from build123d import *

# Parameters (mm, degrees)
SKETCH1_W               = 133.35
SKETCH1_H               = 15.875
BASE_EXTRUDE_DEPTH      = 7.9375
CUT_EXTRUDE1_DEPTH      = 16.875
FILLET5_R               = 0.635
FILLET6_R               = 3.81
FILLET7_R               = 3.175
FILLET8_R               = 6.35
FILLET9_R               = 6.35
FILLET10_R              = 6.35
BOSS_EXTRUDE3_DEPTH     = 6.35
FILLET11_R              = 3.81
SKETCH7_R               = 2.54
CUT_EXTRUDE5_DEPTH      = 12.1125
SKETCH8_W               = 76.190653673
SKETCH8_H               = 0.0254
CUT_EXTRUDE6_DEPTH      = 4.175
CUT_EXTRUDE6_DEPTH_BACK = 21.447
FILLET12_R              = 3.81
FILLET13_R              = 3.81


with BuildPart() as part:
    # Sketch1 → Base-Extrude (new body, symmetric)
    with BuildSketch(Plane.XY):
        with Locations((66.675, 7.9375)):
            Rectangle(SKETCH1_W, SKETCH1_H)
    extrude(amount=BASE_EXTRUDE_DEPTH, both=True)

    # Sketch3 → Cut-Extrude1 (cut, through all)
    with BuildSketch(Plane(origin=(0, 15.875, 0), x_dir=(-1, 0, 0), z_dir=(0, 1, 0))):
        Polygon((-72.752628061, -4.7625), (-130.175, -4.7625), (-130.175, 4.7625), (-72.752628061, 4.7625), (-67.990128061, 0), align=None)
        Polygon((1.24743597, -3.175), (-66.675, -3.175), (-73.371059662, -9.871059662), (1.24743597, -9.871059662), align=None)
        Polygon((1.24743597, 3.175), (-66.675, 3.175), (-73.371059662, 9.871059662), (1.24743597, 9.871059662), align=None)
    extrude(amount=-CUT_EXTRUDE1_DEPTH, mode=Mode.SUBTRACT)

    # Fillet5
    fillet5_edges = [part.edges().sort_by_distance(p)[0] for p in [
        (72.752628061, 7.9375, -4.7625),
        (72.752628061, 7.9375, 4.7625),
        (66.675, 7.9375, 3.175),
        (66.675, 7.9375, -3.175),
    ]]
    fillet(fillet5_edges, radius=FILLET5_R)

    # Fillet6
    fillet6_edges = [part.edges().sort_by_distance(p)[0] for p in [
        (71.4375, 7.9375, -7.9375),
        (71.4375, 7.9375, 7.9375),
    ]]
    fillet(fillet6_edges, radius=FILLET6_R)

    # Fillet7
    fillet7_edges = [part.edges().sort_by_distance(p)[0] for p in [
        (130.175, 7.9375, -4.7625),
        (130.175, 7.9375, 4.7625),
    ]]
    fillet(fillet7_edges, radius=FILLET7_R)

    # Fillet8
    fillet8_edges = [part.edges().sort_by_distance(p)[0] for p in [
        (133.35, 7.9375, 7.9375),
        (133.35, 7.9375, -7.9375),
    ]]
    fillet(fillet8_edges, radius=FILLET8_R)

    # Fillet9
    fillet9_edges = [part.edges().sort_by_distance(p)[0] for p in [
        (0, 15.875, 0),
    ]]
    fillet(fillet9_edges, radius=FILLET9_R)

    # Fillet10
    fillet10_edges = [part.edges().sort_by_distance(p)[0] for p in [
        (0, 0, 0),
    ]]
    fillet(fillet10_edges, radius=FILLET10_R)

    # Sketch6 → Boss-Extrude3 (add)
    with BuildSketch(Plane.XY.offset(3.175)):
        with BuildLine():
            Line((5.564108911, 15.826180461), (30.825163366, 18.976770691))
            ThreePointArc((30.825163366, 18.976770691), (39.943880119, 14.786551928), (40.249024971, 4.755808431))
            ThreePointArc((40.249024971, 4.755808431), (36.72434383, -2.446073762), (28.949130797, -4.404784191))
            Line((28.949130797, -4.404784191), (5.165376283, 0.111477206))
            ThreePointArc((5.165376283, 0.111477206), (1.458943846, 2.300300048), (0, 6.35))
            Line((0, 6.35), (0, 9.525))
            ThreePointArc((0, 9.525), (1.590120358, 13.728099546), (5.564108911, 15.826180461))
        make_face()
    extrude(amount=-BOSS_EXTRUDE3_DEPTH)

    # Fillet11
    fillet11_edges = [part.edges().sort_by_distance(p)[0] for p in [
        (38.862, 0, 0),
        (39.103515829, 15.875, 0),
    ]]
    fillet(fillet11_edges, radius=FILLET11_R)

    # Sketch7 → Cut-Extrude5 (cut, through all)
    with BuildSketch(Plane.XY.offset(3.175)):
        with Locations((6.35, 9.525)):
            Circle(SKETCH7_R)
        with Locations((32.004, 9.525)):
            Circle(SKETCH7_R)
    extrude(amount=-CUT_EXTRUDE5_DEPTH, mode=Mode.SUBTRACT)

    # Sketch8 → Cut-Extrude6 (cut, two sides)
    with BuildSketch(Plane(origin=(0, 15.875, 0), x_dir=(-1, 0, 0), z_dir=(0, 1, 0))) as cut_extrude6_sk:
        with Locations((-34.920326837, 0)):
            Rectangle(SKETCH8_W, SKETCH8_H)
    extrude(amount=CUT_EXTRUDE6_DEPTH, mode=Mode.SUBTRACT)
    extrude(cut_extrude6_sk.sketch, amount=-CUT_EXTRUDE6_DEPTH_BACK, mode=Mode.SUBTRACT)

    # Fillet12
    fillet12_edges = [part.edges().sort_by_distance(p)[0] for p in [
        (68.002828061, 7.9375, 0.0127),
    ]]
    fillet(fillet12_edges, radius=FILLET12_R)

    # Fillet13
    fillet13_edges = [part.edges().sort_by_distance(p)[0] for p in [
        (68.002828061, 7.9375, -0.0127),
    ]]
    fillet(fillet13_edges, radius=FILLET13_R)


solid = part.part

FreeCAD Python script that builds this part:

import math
import FreeCAD as App
import Part
import Sketcher

V = App.Vector
Q = App.Units.Quantity


def edges_at(feature, points):
    """Names of the edges that pass closest to the given points."""
    edges = feature.Shape.Edges
    near = lambda p: min(range(len(edges)), key=lambda i: edges[i].distToShape(Part.Vertex(*p))[0])
    return sorted({f"Edge{near(p) + 1}" for p in points})

doc = App.newDocument("Part")
body = doc.addObject("PartDesign::Body", "Body")

# Sketch on XY plane
sketch1 = body.newObject("Sketcher::SketchObject", "Sketch")
sketch1.AttachmentSupport = (doc.getObject("XY_Plane"), [""])
sketch1.MapMode = "FlatFace"
sketch1.addGeometry([
    Part.LineSegment(V(0, 16, 0), V(0, 0, 0)),
    Part.LineSegment(V(0, 0, 0), V(133, 0, 0)),
    Part.LineSegment(V(133, 0, 0), V(133, 16, 0)),
    Part.LineSegment(V(133, 16, 0), V(0, 16, 0)),
], False)
sketch1.addConstraint([
    Sketcher.Constraint("Coincident", 0, 2, 1, 1),
    Sketcher.Constraint("Coincident", 1, 2, 2, 1),
    Sketcher.Constraint("Coincident", 2, 2, 3, 1),
    Sketcher.Constraint("Coincident", 3, 2, 0, 1),
    Sketcher.Constraint("Vertical", 0),
    Sketcher.Constraint("Horizontal", 1),
    Sketcher.Constraint("Vertical", 2),
    Sketcher.Constraint("Horizontal", 3),
    Sketcher.Constraint("Coincident", 0, 2, -1, 1),
    Sketcher.Constraint("DistanceX", 1, 1, 1, 2, Q("5.25 in")),
    Sketcher.Constraint("DistanceY", 0, 2, 0, 1, Q("0.625 in")),
])
pad1 = body.newObject("PartDesign::Pad", "Pad")
pad1.Profile = sketch1
pad1.Length = Q("0.625 in")
pad1.Midplane = True

# Sketch on XZ plane
sketch2 = body.newObject("Sketcher::SketchObject", "Sketch001")
sketch2.AttachmentSupport = (doc.getObject("XZ_Plane"), [""])
sketch2.MapMode = "FlatFace"
sketch2.AttachmentOffset = App.Placement(V(0, 0, -0.625 * 25.4), App.Rotation())
sketch2.addGeometry([
    Part.LineSegment(V(130, -5, 0), V(73, -5, 0)),  # 0
    Part.LineSegment(V(73, -5, 0), V(68, 0, 0)),  # 1
    Part.LineSegment(V(68, 0, 0), V(73, 5, 0)),  # 2
    Part.LineSegment(V(73, 5, 0), V(130, 5, 0)),  # 3
    Part.LineSegment(V(130, 5, 0), V(130, -5, 0)),  # 4
    Part.LineSegment(V(-1, -3, 0), V(67, -3, 0)),  # 5
    Part.LineSegment(V(67, -3, 0), V(73, -10, 0)),  # 6
    Part.LineSegment(V(73, -10, 0), V(-1, -10, 0)),  # 7
    Part.LineSegment(V(-1, -10, 0), V(-1, -3, 0)),  # 8
    Part.LineSegment(V(67, 3, 0), V(-1, 3, 0)),  # 9
    Part.LineSegment(V(-1, 3, 0), V(-1, 10, 0)),  # 10
    Part.LineSegment(V(-1, 10, 0), V(73, 10, 0)),  # 11
    Part.LineSegment(V(73, 10, 0), V(67, 3, 0)),  # 12
], False)
sketch2.addConstraint([
    Sketcher.Constraint("Coincident", 0, 2, 1, 1),
    Sketcher.Constraint("Coincident", 1, 2, 2, 1),
    Sketcher.Constraint("Coincident", 2, 2, 3, 1),
    Sketcher.Constraint("Coincident", 3, 2, 4, 1),
    Sketcher.Constraint("Coincident", 4, 2, 0, 1),
    Sketcher.Constraint("Coincident", 5, 2, 6, 1),
    Sketcher.Constraint("Coincident", 6, 2, 7, 1),
    Sketcher.Constraint("Coincident", 7, 2, 8, 1),
    Sketcher.Constraint("Coincident", 8, 2, 5, 1),
    Sketcher.Constraint("Coincident", 9, 2, 10, 1),
    Sketcher.Constraint("Coincident", 10, 2, 11, 1),
    Sketcher.Constraint("Coincident", 11, 2, 12, 1),
    Sketcher.Constraint("Coincident", 12, 2, 9, 1),
    Sketcher.Constraint("Horizontal", 0),
    Sketcher.Constraint("Horizontal", 3),
    Sketcher.Constraint("Vertical", 4),
    Sketcher.Constraint("Horizontal", 5),
    Sketcher.Constraint("Horizontal", 7),
    Sketcher.Constraint("Vertical", 8),
    Sketcher.Constraint("Horizontal", 9),
    Sketcher.Constraint("Vertical", 10),
    Sketcher.Constraint("Horizontal", 11),
    Sketcher.Constraint("Symmetric", 0, 2, 2, 2, -1),
    Sketcher.Constraint("Symmetric", 8, 2, 9, 2, -1),
    Sketcher.Constraint("Symmetric", 6, 2, 11, 2, -1),
    Sketcher.Constraint("PointOnObject", 1, 2, -1),
    Sketcher.Constraint("Perpendicular", 1, 2),
    Sketcher.Constraint("Perpendicular", 2, 6),
    Sketcher.Constraint("Perpendicular", 6, 12),
    Sketcher.Constraint("DistanceX", 5, 2, 4, 2, Q("2.5 in")),
    Sketcher.Constraint("DistanceY", 4, 2, 4, 1, Q("0.375 in")),
    Sketcher.Constraint("DistanceY", 8, 2, 9, 2, Q("0.25 in")),
    Sketcher.Constraint("DistanceX", -1, 1, 3, 2, Q("5.125 in")),
    Sketcher.Constraint("DistanceX", 0, 2, 0, 1, 57.422372),
    Sketcher.Constraint("DistanceY", 8, 1, 8, 2, 6.69606),
    Sketcher.Constraint("DistanceX", 5, 1, 5, 2, 67.922436),
])
pocket1 = body.newObject("PartDesign::Pocket", "Pocket")
pocket1.Profile = sketch2
pocket1.Type = "ThroughAll"
pocket1.Reversed = True
doc.recompute()

fillet = body.newObject("PartDesign::Fillet", "Fillet")
fillet.Base = (pocket1, edges_at(pocket1, [
    (72.753, 7.938, -4.763),
    (72.753, 7.938, 4.763),
    (66.675, 7.938, 3.175),
    (66.675, 7.938, -3.175),
]))
fillet.Radius = Q("0.025 in")
doc.recompute()

fillet2 = body.newObject("PartDesign::Fillet", "Fillet001")
fillet2.Base = (fillet, edges_at(fillet, [(71.438, 7.938, -7.938), (71.438, 7.938, 7.938)]))
fillet2.Radius = Q("0.15 in")
doc.recompute()

fillet3 = body.newObject("PartDesign::Fillet", "Fillet002")
fillet3.Base = (fillet2, edges_at(fillet2, [(130.175, 7.938, -4.763), (130.175, 7.938, 4.763)]))
fillet3.Radius = Q("0.125 in")
doc.recompute()

fillet4 = body.newObject("PartDesign::Fillet", "Fillet003")
fillet4.Base = (fillet3, edges_at(fillet3, [(133.35, 7.938, 7.938), (133.35, 7.938, -7.938)]))
fillet4.Radius = Q("0.25 in")
doc.recompute()

fillet5 = body.newObject("PartDesign::Fillet", "Fillet004")
fillet5.Base = (fillet4, edges_at(fillet4, [(0, 15.875, 0)]))
fillet5.Radius = Q("0.25 in")
doc.recompute()

fillet6 = body.newObject("PartDesign::Fillet", "Fillet005")
fillet6.Base = (fillet5, edges_at(fillet5, [(0, 0, 0)]))
fillet6.Radius = Q("0.25 in")

# Sketch on XY plane
sketch3 = body.newObject("Sketcher::SketchObject", "Sketch002")
sketch3.AttachmentSupport = (doc.getObject("XY_Plane"), [""])
sketch3.MapMode = "FlatFace"
sketch3.AttachmentOffset = App.Placement(V(0, 0, 0.125 * 25.4), App.Rotation())
sketch3.addGeometry([
    Part.LineSegment(V(30.8, 19, 0), V(5.6, 15.8, 0)),  # 0
    Part.ArcOfCircle(Part.Circle(V(6.4, 9.5, 0), V(0, 0, 1), 6.4), math.radians(97), math.radians(180)),  # 1
    Part.LineSegment(V(0, 9.5, 0), V(0, 6.3, 0)),  # 2
    Part.ArcOfCircle(Part.Circle(V(6.3, 6.3, 0), V(0, 0, 1), 6.3), math.radians(180), math.radians(259)),  # 3
    Part.LineSegment(V(5.2, 0.1, 0), V(28.9, -4.4, 0)),  # 4
    Part.ArcOfCircle(Part.Circle(V(30.7, 5, 0), V(0, 0, 1), 9.5), math.radians(-101), math.radians(-1)),  # 5
    Part.ArcOfCircle(Part.Circle(V(32, 9.5, 0), V(0, 0, 1), 9.5), math.radians(-30), math.radians(97)),  # 6
], False)
sketch3.addConstraint([
    Sketcher.Constraint("Tangent", 0, 2, 1, 1),
    Sketcher.Constraint("Tangent", 1, 2, 2, 1),
    Sketcher.Constraint("Tangent", 2, 2, 3, 1),
    Sketcher.Constraint("Tangent", 3, 2, 4, 1),
    Sketcher.Constraint("Tangent", 4, 2, 5, 1),
    Sketcher.Constraint("Coincident", 5, 2, 6, 1),
    Sketcher.Constraint("Tangent", 6, 2, 0, 1),
    Sketcher.Constraint("Vertical", 2),
    Sketcher.Constraint("Equal", 1, 3),
    Sketcher.Constraint("Equal", 5, 6),
    Sketcher.Constraint("PointOnObject", 1, 2, -2),
    Sketcher.Constraint("Horizontal", 1, 3, 6, 3),
    Sketcher.Constraint("Radius", 1, Q("0.25 in")),
    Sketcher.Constraint("Radius", 5, Q("0.375 in")),
    Sketcher.Constraint("DistanceY", 2, 2, 2, 1, Q("0.125 in")),
    Sketcher.Constraint("DistanceY", -1, 1, 3, 3, Q("0.25 in")),
    Sketcher.Constraint("DistanceX", -1, 1, 6, 3, Q("1.26 in")),
    Sketcher.Constraint("DistanceY", 5, 3, 1, 3, Q("0.18 in")),
    Sketcher.Constraint("Distance", 4, 24.20875),
])
pad2 = body.newObject("PartDesign::Pad", "Pad001")
pad2.Profile = sketch3
pad2.Length = Q("0.25 in")
pad2.Reversed = True
doc.recompute()

fillet7 = body.newObject("PartDesign::Fillet", "Fillet006")
fillet7.Base = (pad2, edges_at(pad2, [(38.862, 0, 0), (39.104, 15.875, 0)]))
fillet7.Radius = Q("0.15 in")

# Sketch on XY plane
sketch4 = body.newObject("Sketcher::SketchObject", "Sketch003")
sketch4.AttachmentSupport = (doc.getObject("XY_Plane"), [""])
sketch4.MapMode = "FlatFace"
sketch4.AttachmentOffset = App.Placement(V(0, 0, 0.125 * 25.4), App.Rotation())
sketch4.addGeometry([
    Part.Circle(V(6.3, 9.5, 0), V(0, 0, 1), 2.5),
    Part.Circle(V(32, 9.5, 0), V(0, 0, 1), 2.5),
], False)
sketch4.addConstraint([
    Sketcher.Constraint("Equal", 0, 1),
    Sketcher.Constraint("Horizontal", 0, 3, 1, 3),
    Sketcher.Constraint("Diameter", 0, Q("0.2 in")),
    Sketcher.Constraint("DistanceX", -1, 1, 0, 3, Q("0.25 in")),
    Sketcher.Constraint("DistanceX", -1, 1, 1, 3, Q("1.26 in")),
    Sketcher.Constraint("DistanceY", -1, 1, 0, 3, Q("0.375 in")),
])
pocket2 = body.newObject("PartDesign::Pocket", "Pocket001")
pocket2.Profile = sketch4
pocket2.Type = "ThroughAll"

# Sketch on XZ plane
sketch5 = body.newObject("Sketcher::SketchObject", "Sketch004")
sketch5.AttachmentSupport = (doc.getObject("XZ_Plane"), [""])
sketch5.MapMode = "FlatFace"
sketch5.AttachmentOffset = App.Placement(V(0, 0, -0.625 * 25.4), App.Rotation())
sketch5.addGeometry([
    Part.LineSegment(V(73.016, 0.013, 0), V(73.016, -0.013, 0)),
    Part.LineSegment(V(73.016, -0.013, 0), V(-3.175, -0.013, 0)),
    Part.LineSegment(V(-3.175, -0.013, 0), V(-3.175, 0.013, 0)),
    Part.LineSegment(V(-3.175, 0.013, 0), V(73.016, 0.013, 0)),
], False)
sketch5.addConstraint([
    Sketcher.Constraint("Coincident", 0, 2, 1, 1),
    Sketcher.Constraint("Coincident", 1, 2, 2, 1),
    Sketcher.Constraint("Coincident", 2, 2, 3, 1),
    Sketcher.Constraint("Coincident", 3, 2, 0, 1),
    Sketcher.Constraint("Vertical", 0),
    Sketcher.Constraint("Horizontal", 1),
    Sketcher.Constraint("Vertical", 2),
    Sketcher.Constraint("Horizontal", 3),
    Sketcher.Constraint("DistanceY", 0, 2, 0, 1, Q("0.001 in")),
    Sketcher.Constraint("DistanceX", 1, 2, -1, 1, Q("0.125 in")),
    Sketcher.Constraint("DistanceY", 0, 2, -1, 1, Q("0.0005 in")),
    Sketcher.Constraint("DistanceX", 1, 2, 1, 1, 76.190654),
])
pocket3 = body.newObject("PartDesign::Pocket", "Pocket002")
pocket3.Profile = sketch5
pocket3.Type = "ThroughAll"
pocket3.Midplane = True
doc.recompute()

fillet8 = body.newObject("PartDesign::Fillet", "Fillet007")
fillet8.Base = (pocket3, edges_at(pocket3, [(68.003, 7.938, 0.013)]))
fillet8.Radius = Q("0.15 in")
doc.recompute()

fillet9 = body.newObject("PartDesign::Fillet", "Fillet008")
fillet9.Base = (fillet8, edges_at(fillet8, [(68.003, 7.938, -0.013)]))
fillet9.Radius = Q("0.15 in")

doc.recompute()
